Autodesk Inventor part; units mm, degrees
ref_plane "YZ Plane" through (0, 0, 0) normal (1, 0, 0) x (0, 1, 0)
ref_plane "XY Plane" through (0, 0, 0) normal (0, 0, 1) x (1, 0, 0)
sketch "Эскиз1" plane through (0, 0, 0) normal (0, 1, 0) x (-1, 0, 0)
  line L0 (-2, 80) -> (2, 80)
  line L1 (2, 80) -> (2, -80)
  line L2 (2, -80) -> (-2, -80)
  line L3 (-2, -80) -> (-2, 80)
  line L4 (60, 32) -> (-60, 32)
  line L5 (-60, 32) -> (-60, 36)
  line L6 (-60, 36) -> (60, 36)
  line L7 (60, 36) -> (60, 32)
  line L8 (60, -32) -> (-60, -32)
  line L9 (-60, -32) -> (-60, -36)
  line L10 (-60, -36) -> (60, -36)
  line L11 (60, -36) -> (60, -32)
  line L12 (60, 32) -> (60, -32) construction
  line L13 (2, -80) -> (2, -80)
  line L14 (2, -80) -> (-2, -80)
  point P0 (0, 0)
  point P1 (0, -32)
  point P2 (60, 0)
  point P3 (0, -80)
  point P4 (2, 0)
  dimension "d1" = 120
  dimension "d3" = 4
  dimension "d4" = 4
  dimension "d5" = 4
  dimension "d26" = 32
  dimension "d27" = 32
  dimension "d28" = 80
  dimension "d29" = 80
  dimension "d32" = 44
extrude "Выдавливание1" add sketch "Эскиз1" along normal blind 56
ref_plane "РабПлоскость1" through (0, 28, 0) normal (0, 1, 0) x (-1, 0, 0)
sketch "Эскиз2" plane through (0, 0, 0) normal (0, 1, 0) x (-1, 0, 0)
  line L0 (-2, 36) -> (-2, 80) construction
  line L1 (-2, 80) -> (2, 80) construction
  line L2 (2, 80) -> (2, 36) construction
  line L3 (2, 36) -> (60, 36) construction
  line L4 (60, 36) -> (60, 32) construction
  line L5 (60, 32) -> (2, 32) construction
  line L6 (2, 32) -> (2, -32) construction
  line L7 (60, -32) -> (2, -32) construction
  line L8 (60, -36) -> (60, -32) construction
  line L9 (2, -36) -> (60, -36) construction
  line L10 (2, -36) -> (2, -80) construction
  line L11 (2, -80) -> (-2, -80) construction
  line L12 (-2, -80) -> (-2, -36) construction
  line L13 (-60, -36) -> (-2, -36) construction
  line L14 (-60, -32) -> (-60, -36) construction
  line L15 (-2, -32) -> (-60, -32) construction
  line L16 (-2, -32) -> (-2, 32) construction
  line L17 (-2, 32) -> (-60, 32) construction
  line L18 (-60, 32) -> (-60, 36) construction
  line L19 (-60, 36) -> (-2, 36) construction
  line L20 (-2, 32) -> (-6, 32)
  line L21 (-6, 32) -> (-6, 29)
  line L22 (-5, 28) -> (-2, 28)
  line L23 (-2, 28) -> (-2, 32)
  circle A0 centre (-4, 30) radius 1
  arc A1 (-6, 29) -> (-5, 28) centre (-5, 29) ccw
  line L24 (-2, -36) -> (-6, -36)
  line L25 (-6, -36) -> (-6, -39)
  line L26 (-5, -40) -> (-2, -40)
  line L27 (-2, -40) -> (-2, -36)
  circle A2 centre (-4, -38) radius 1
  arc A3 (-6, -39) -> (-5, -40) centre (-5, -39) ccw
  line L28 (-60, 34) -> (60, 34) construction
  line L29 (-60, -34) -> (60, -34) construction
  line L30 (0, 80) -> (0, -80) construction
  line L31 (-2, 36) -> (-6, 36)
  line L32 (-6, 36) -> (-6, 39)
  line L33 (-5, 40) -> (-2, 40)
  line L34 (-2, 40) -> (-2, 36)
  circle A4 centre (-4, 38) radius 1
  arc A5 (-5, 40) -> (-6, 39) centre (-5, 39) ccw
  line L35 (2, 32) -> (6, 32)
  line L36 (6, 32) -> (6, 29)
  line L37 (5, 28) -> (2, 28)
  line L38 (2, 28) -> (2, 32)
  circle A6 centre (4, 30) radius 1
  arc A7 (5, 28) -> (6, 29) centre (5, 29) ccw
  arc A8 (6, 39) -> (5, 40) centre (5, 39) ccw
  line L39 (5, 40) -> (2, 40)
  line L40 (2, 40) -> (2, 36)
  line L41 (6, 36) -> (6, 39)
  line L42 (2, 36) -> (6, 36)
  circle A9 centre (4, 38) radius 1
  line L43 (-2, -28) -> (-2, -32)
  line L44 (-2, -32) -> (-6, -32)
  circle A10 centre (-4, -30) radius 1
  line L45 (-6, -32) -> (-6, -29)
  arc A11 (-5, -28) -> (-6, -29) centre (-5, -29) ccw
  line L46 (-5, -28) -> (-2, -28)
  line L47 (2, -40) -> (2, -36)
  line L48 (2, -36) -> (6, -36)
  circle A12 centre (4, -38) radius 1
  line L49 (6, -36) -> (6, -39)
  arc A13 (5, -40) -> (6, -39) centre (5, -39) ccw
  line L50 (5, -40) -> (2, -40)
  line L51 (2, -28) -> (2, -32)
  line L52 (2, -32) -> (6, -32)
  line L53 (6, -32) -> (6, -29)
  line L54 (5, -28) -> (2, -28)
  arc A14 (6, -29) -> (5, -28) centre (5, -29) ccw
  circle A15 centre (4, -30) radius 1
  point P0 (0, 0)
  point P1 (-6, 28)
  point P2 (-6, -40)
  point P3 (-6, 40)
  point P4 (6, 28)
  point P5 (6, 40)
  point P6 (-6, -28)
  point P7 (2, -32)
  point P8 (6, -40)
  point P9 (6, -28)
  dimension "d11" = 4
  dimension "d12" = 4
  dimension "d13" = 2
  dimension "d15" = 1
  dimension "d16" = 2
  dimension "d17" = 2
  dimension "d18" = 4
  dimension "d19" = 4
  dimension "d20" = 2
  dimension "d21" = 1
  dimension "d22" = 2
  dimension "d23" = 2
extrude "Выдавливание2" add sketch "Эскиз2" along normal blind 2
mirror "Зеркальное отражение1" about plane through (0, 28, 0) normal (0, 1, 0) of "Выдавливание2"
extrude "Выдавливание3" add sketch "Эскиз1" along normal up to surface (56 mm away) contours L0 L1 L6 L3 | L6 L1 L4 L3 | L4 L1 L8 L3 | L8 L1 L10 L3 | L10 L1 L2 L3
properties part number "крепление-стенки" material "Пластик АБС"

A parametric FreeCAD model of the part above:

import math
import FreeCAD as App
import Part
import Sketcher
from FreeCAD import Vector


def add_polygon(sketch, points):
    """Adds a closed chain of lines whose ends are joined by coincident constraints."""
    first, n = sketch.GeometryCount, len(points)
    for a, b in zip(points, points[1:] + points[:1]):
        sketch.addGeometry(Part.LineSegment(App.Vector(*a, 0), App.Vector(*b, 0)), False)
    for i in range(n):
        sketch.addConstraint(Sketcher.Constraint("Coincident", first + i, 2, first + (i + 1) % n, 1))

doc = App.newDocument("Part")
params = doc.addObject("Spreadsheet::Sheet", "Params")
for row, (alias, value) in enumerate([
    ("sketch1_width", "4 mm"),
    ("sketch1_height", "44 mm"),
    ("sketch1_width2", "58 mm"),
    ("pad1_length", "56 mm"),
    ("sketch2_diameter", "2 mm"),
    ("sketch2_width", "4 mm"),
    ("pad2_length", "2 mm"),
    ("sketch3_width", "4 mm"),
    ("pad3_length", "56 mm"),
], start=1):
    params.set(f"A{row}", alias)
    params.set(f"B{row}", "=" + value)
    params.setAlias(f"B{row}", alias)

body = doc.addObject("PartDesign::Body", "Body")

sketch1 = body.newObject("Sketcher::SketchObject", "Sketch")
sketch1.AttachmentSupport = (doc.getObject("XZ_Plane"), [""])
sketch1.MapMode = "FlatFace"
add_polygon(sketch1, [(-2, 80), (2, 80), (2, 36), (60, 36), (60, 32), (2, 32), (2, -32), (60, -32), (60, -36), (2, -36), (2, -80), (-2, -80), (-2, -36), (-60, -36), (-60, -32), (-2, -32), (-2, 32), (-60, 32), (-60, 36), (-2, 36)])
sketch1.addConstraint(Sketcher.Constraint("Horizontal", 0))
sketch1.addConstraint(Sketcher.Constraint("Vertical", 1))
sketch1.addConstraint(Sketcher.Constraint("Horizontal", 2))
sketch1.addConstraint(Sketcher.Constraint("Vertical", 3))
sketch1.addConstraint(Sketcher.Constraint("Horizontal", 4))
sketch1.addConstraint(Sketcher.Constraint("Vertical", 5))
sketch1.addConstraint(Sketcher.Constraint("Horizontal", 6))
sketch1.addConstraint(Sketcher.Constraint("Vertical", 7))
sketch1.addConstraint(Sketcher.Constraint("Horizontal", 8))
sketch1.addConstraint(Sketcher.Constraint("Vertical", 9))
sketch1.addConstraint(Sketcher.Constraint("Horizontal", 10))
sketch1.addConstraint(Sketcher.Constraint("Vertical", 11))
sketch1.addConstraint(Sketcher.Constraint("Horizontal", 12))
sketch1.addConstraint(Sketcher.Constraint("Vertical", 13))
sketch1.addConstraint(Sketcher.Constraint("Horizontal", 14))
sketch1.addConstraint(Sketcher.Constraint("Vertical", 15))
sketch1.addConstraint(Sketcher.Constraint("Horizontal", 16))
sketch1.addConstraint(Sketcher.Constraint("Vertical", 17))
sketch1.addConstraint(Sketcher.Constraint("Horizontal", 18))
sketch1.addConstraint(Sketcher.Constraint("Vertical", 19))
sketch1.addConstraint(Sketcher.Constraint("Symmetric", 0, 2, 10, 2, -1, 1))
sketch1.addConstraint(Sketcher.Constraint("Symmetric", 2, 2, 12, 2, -1, 1))
sketch1.addConstraint(Sketcher.Constraint("Symmetric", 4, 2, 14, 2, -1, 1))
sketch1.addConstraint(Sketcher.Constraint("Symmetric", 6, 2, 16, 2, -1, 1))
sketch1.addConstraint(Sketcher.Constraint("Symmetric", 8, 2, 18, 2, -1, 1))
sketch1.addConstraint(Sketcher.Constraint("Symmetric", 8, 2, 11, 2, -2))
sketch1.addConstraint(Sketcher.Constraint("Symmetric", 6, 2, 13, 2, -2))
sketch1.addConstraint(Sketcher.Constraint("Vertical", 1, 2, 4, 2))
sketch1.addConstraint(Sketcher.Constraint("Equal", 10, 3))
sketch1.addConstraint(Sketcher.Constraint("DistanceX", 0, 1, 0, 2, 4.0))
sketch1.addConstraint(Sketcher.Constraint("DistanceY", 1, 2, 1, 1, 44.0))
sketch1.addConstraint(Sketcher.Constraint("DistanceY", -1, 1, 0, 2, 80.0))
sketch1.addConstraint(Sketcher.Constraint("DistanceX", 2, 1, 2, 2, 58.0))
sketch1.setExpression("Constraints[49]", "Params.sketch1_width")
sketch1.setExpression("Constraints[50]", "Params.sketch1_height")
sketch1.setExpression("Constraints[52]", "Params.sketch1_width2")
pad1 = body.newObject("PartDesign::Pad", "Pad")
pad1.Profile = sketch1
pad1.setExpression("Length", "Params.pad1_length")
pad1.Reversed = True

sketch2 = body.newObject("Sketcher::SketchObject", "Sketch001")
sketch2.AttachmentSupport = (doc.getObject("XZ_Plane"), [""])
sketch2.MapMode = "FlatFace"
sketch2.addGeometry(Part.LineSegment(Vector(2, 28, 0), Vector(2, 32, 0)), False)
sketch2.addGeometry(Part.LineSegment(Vector(2, 32, 0), Vector(6, 32, 0)), False)
sketch2.addGeometry(Part.LineSegment(Vector(6, 32, 0), Vector(6, 29, 0)), False)
sketch2.addGeometry(Part.ArcOfCircle(Part.Circle(Vector(5, 29, 0), Vector(0, 0, 1), 1), math.radians(-90), math.radians(0)), False)
sketch2.addGeometry(Part.LineSegment(Vector(5, 28, 0), Vector(2, 28, 0)), False)
sketch2.addGeometry(Part.Circle(Vector(4, 30, 0), Vector(0, 0, 1), 1), False)
sketch2.addGeometry(Part.LineSegment(Vector(2, -40, 0), Vector(2, -36, 0)), False)
sketch2.addGeometry(Part.LineSegment(Vector(2, -36, 0), Vector(6, -36, 0)), False)
sketch2.addGeometry(Part.LineSegment(Vector(6, -36, 0), Vector(6, -39, 0)), False)
sketch2.addGeometry(Part.ArcOfCircle(Part.Circle(Vector(5, -39, 0), Vector(0, 0, 1), 1), math.radians(-90), math.radians(0)), False)
sketch2.addGeometry(Part.LineSegment(Vector(5, -40, 0), Vector(2, -40, 0)), False)
sketch2.addGeometry(Part.Circle(Vector(4, -38, 0), Vector(0, 0, 1), 1), False)
sketch2.addGeometry(Part.LineSegment(Vector(6, 36, 0), Vector(2, 36, 0)), False)
sketch2.addGeometry(Part.LineSegment(Vector(2, 36, 0), Vector(2, 40, 0)), False)
sketch2.addGeometry(Part.LineSegment(Vector(2, 40, 0), Vector(5, 40, 0)), False)
sketch2.addGeometry(Part.ArcOfCircle(Part.Circle(Vector(5, 39, 0), Vector(0, 0, 1), 1), math.radians(0), math.radians(90)), False)
sketch2.addGeometry(Part.LineSegment(Vector(6, 39, 0), Vector(6, 36, 0)), False)
sketch2.addGeometry(Part.Circle(Vector(4, 38, 0), Vector(0, 0, 1), 1), False)
sketch2.addGeometry(Part.LineSegment(Vector(-6, 32, 0), Vector(-2, 32, 0)), False)
sketch2.addGeometry(Part.LineSegment(Vector(-2, 32, 0), Vector(-2, 28, 0)), False)
sketch2.addGeometry(Part.LineSegment(Vector(-2, 28, 0), Vector(-5, 28, 0)), False)
sketch2.addGeometry(Part.ArcOfCircle(Part.Circle(Vector(-5, 29, 0), Vector(0, 0, 1), 1), math.radians(180), math.radians(270)), False)
sketch2.addGeometry(Part.LineSegment(Vector(-6, 29, 0), Vector(-6, 32, 0)), False)
sketch2.addGeometry(Part.Circle(Vector(-4, 30, 0), Vector(0, 0, 1), 1), False)
sketch2.addGeometry(Part.LineSegment(Vector(-6, 36, 0), Vector(-6, 39, 0)), False)
sketch2.addGeometry(Part.ArcOfCircle(Part.Circle(Vector(-5, 39, 0), Vector(0, 0, 1), 1), math.radians(90), math.radians(180)), False)
sketch2.addGeometry(Part.LineSegment(Vector(-5, 40, 0), Vector(-2, 40, 0)), False)
sketch2.addGeometry(Part.LineSegment(Vector(-2, 40, 0), Vector(-2, 36, 0)), False)
sketch2.addGeometry(Part.LineSegment(Vector(-2, 36, 0), Vector(-6, 36, 0)), False)
sketch2.addGeometry(Part.Circle(Vector(-4, 38, 0), Vector(0, 0, 1), 1), False)
sketch2.addGeometry(Part.LineSegment(Vector(2, -32, 0), Vector(2, -28, 0)), False)
sketch2.addGeometry(Part.LineSegment(Vector(2, -28, 0), Vector(5, -28, 0)), False)
sketch2.addGeometry(Part.ArcOfCircle(Part.Circle(Vector(5, -29, 0), Vector(0, 0, 1), 1), math.radians(0), math.radians(90)), False)
sketch2.addGeometry(Part.LineSegment(Vector(6, -29, 0), Vector(6, -32, 0)), False)
sketch2.addGeometry(Part.LineSegment(Vector(6, -32, 0), Vector(2, -32, 0)), False)
sketch2.addGeometry(Part.Circle(Vector(4, -30, 0), Vector(0, 0, 1), 1), False)
sketch2.addGeometry(Part.LineSegment(Vector(-2, -36, 0), Vector(-2, -40, 0)), False)
sketch2.addGeometry(Part.LineSegment(Vector(-2, -40, 0), Vector(-5, -40, 0)), False)
sketch2.addGeometry(Part.ArcOfCircle(Part.Circle(Vector(-5, -39, 0), Vector(0, 0, 1), 1), math.radians(180), math.radians(270)), False)
sketch2.addGeometry(Part.LineSegment(Vector(-6, -39, 0), Vector(-6, -36, 0)), False)
sketch2.addGeometry(Part.LineSegment(Vector(-6, -36, 0), Vector(-2, -36, 0)), False)
sketch2.addGeometry(Part.Circle(Vector(-4, -38, 0), Vector(0, 0, 1), 1), False)
sketch2.addGeometry(Part.LineSegment(Vector(-5, -28, 0), Vector(-2, -28, 0)), False)
sketch2.addGeometry(Part.LineSegment(Vector(-2, -28, 0), Vector(-2, -32, 0)), False)
sketch2.addGeometry(Part.LineSegment(Vector(-2, -32, 0), Vector(-6, -32, 0)), False)
sketch2.addGeometry(Part.LineSegment(Vector(-6, -32, 0), Vector(-6, -29, 0)), False)
sketch2.addGeometry(Part.ArcOfCircle(Part.Circle(Vector(-5, -29, 0), Vector(0, 0, 1), 1), math.radians(90), math.radians(180)), False)
sketch2.addGeometry(Part.Circle(Vector(-4, -30, 0), Vector(0, 0, 1), 1), False)
sketch2.addConstraint(Sketcher.Constraint("Coincident", 0, 2, 1, 1))
sketch2.addConstraint(Sketcher.Constraint("Coincident", 1, 2, 2, 1))
sketch2.addConstraint(Sketcher.Constraint("Tangent", 2, 2, 3, 2))
sketch2.addConstraint(Sketcher.Constraint("Tangent", 3, 1, 4, 1))
sketch2.addConstraint(Sketcher.Constraint("Coincident", 4, 2, 0, 1))
sketch2.addConstraint(Sketcher.Constraint("Coincident", 6, 2, 7, 1))
sketch2.addConstraint(Sketcher.Constraint("Coincident", 7, 2, 8, 1))
sketch2.addConstraint(Sketcher.Constraint("Tangent", 8, 2, 9, 2))
sketch2.addConstraint(Sketcher.Constraint("Tangent", 9, 1, 10, 1))
sketch2.addConstraint(Sketcher.Constraint("Coincident", 10, 2, 6, 1))
sketch2.addConstraint(Sketcher.Constraint("Coincident", 12, 2, 13, 1))
sketch2.addConstraint(Sketcher.Constraint("Coincident", 13, 2, 14, 1))
sketch2.addConstraint(Sketcher.Constraint("Tangent", 14, 2, 15, 2))
sketch2.addConstraint(Sketcher.Constraint("Tangent", 15, 1, 16, 1))
sketch2.addConstraint(Sketcher.Constraint("Coincident", 16, 2, 12, 1))
sketch2.addConstraint(Sketcher.Constraint("Coincident", 18, 2, 19, 1))
sketch2.addConstraint(Sketcher.Constraint("Coincident", 19, 2, 20, 1))
sketch2.addConstraint(Sketcher.Constraint("Tangent", 20, 2, 21, 2))
sketch2.addConstraint(Sketcher.Constraint("Tangent", 21, 1, 22, 1))
sketch2.addConstraint(Sketcher.Constraint("Coincident", 22, 2, 18, 1))
sketch2.addConstraint(Sketcher.Constraint("Tangent", 24, 2, 25, 2))
sketch2.addConstraint(Sketcher.Constraint("Tangent", 25, 1, 26, 1))
sketch2.addConstraint(Sketcher.Constraint("Coincident", 26, 2, 27, 1))
sketch2.addConstraint(Sketcher.Constraint("Coincident", 27, 2, 28, 1))
sketch2.addConstraint(Sketcher.Constraint("Coincident", 28, 2, 24, 1))
sketch2.addConstraint(Sketcher.Constraint("Coincident", 30, 2, 31, 1))
sketch2.addConstraint(Sketcher.Constraint("Tangent", 31, 2, 32, 2))
sketch2.addConstraint(Sketcher.Constraint("Tangent", 32, 1, 33, 1))
sketch2.addConstraint(Sketcher.Constraint("Coincident", 33, 2, 34, 1))
sketch2.addConstraint(Sketcher.Constraint("Coincident", 34, 2, 30, 1))
sketch2.addConstraint(Sketcher.Constraint("Coincident", 36, 2, 37, 1))
sketch2.addConstraint(Sketcher.Constraint("Tangent", 37, 2, 38, 2))
sketch2.addConstraint(Sketcher.Constraint("Tangent", 38, 1, 39, 1))
sketch2.addConstraint(Sketcher.Constraint("Coincident", 39, 2, 40, 1))
sketch2.addConstraint(Sketcher.Constraint("Coincident", 40, 2, 36, 1))
sketch2.addConstraint(Sketcher.Constraint("Coincident", 42, 2, 43, 1))
sketch2.addConstraint(Sketcher.Constraint("Coincident", 43, 2, 44, 1))
sketch2.addConstraint(Sketcher.Constraint("Coincident", 44, 2, 45, 1))
sketch2.addConstraint(Sketcher.Constraint("Tangent", 45, 2, 46, 2))
sketch2.addConstraint(Sketcher.Constraint("Tangent", 46, 1, 42, 1))
sketch2.addConstraint(Sketcher.Constraint("Vertical", 0))
sketch2.addConstraint(Sketcher.Constraint("Horizontal", 1))
sketch2.addConstraint(Sketcher.Constraint("Vertical", 2))
sketch2.addConstraint(Sketcher.Constraint("Horizontal", 4))
sketch2.addConstraint(Sketcher.Constraint("Vertical", 6))
sketch2.addConstraint(Sketcher.Constraint("Horizontal", 7))
sketch2.addConstraint(Sketcher.Constraint("Vertical", 8))
sketch2.addConstraint(Sketcher.Constraint("Horizontal", 10))
sketch2.addConstraint(Sketcher.Constraint("Horizontal", 12))
sketch2.addConstraint(Sketcher.Constraint("Vertical", 13))
sketch2.addConstraint(Sketcher.Constraint("Horizontal", 14))
sketch2.addConstraint(Sketcher.Constraint("Vertical", 16))
sketch2.addConstraint(Sketcher.Constraint("Horizontal", 18))
sketch2.addConstraint(Sketcher.Constraint("Vertical", 19))
sketch2.addConstraint(Sketcher.Constraint("Horizontal", 20))
sketch2.addConstraint(Sketcher.Constraint("Vertical", 22))
sketch2.addConstraint(Sketcher.Constraint("Vertical", 24))
sketch2.addConstraint(Sketcher.Constraint("Horizontal", 26))
sketch2.addConstraint(Sketcher.Constraint("Vertical", 27))
sketch2.addConstraint(Sketcher.Constraint("Horizontal", 28))
sketch2.addConstraint(Sketcher.Constraint("Vertical", 30))
sketch2.addConstraint(Sketcher.Constraint("Horizontal", 31))
sketch2.addConstraint(Sketcher.Constraint("Vertical", 33))
sketch2.addConstraint(Sketcher.Constraint("Horizontal", 34))
sketch2.addConstraint(Sketcher.Constraint("Vertical", 36))
sketch2.addConstraint(Sketcher.Constraint("Horizontal", 37))
sketch2.addConstraint(Sketcher.Constraint("Vertical", 39))
sketch2.addConstraint(Sketcher.Constraint("Horizontal", 40))
sketch2.addConstraint(Sketcher.Constraint("Horizontal", 42))
sketch2.addConstraint(Sketcher.Constraint("Vertical", 43))
sketch2.addConstraint(Sketcher.Constraint("Horizontal", 44))
sketch2.addConstraint(Sketcher.Constraint("Vertical", 45))
sketch2.addConstraint(Sketcher.Constraint("Equal", 3, 5))
sketch2.addConstraint(Sketcher.Constraint("Equal", 5, 9))
sketch2.addConstraint(Sketcher.Constraint("Equal", 9, 11))
sketch2.addConstraint(Sketcher.Constraint("Equal", 11, 15))
sketch2.addConstraint(Sketcher.Constraint("Equal", 15, 17))
sketch2.addConstraint(Sketcher.Constraint("Equal", 17, 21))
sketch2.addConstraint(Sketcher.Constraint("Equal", 21, 23))
sketch2.addConstraint(Sketcher.Constraint("Equal", 23, 25))
sketch2.addConstraint(Sketcher.Constraint("Equal", 25, 29))
sketch2.addConstraint(Sketcher.Constraint("Equal", 29, 32))
sketch2.addConstraint(Sketcher.Constraint("Equal", 32, 35))
sketch2.addConstraint(Sketcher.Constraint("Equal", 35, 38))
sketch2.addConstraint(Sketcher.Constraint("Equal", 38, 41))
sketch2.addConstraint(Sketcher.Constraint("Equal", 41, 46))
sketch2.addConstraint(Sketcher.Constraint("Equal", 46, 47))
sketch2.addConstraint(Sketcher.Constraint("Symmetric", 9, 3, 25, 3, -1, 1))
sketch2.addConstraint(Sketcher.Constraint("Symmetric", 11, 3, 29, 3, -1, 1))
sketch2.addConstraint(Sketcher.Constraint("Symmetric", 21, 3, 32, 3, -1, 1))
sketch2.addConstraint(Sketcher.Constraint("Symmetric", 23, 3, 35, 3, -1, 1))
sketch2.addConstraint(Sketcher.Constraint("Symmetric", 15, 3, 38, 3, -1, 1))
sketch2.addConstraint(Sketcher.Constraint("Symmetric", 17, 3, 41, 3, -1, 1))
sketch2.addConstraint(Sketcher.Constraint("Symmetric", 3, 3, 46, 3, -1, 1))
sketch2.addConstraint(Sketcher.Constraint("Symmetric", 5, 3, 47, 3, -1, 1))
sketch2.addConstraint(Sketcher.Constraint("Symmetric", 6, 2, 27, 2, -1, 1))
sketch2.addConstraint(Sketcher.Constraint("Symmetric", 18, 2, 34, 2, -1, 1))
sketch2.addConstraint(Sketcher.Constraint("Symmetric", 12, 2, 40, 2, -1, 1))
sketch2.addConstraint(Sketcher.Constraint("Symmetric", 0, 2, 43, 2, -1, 1))
sketch2.addConstraint(Sketcher.Constraint("Symmetric", 3, 3, 21, 3, -2))
sketch2.addConstraint(Sketcher.Constraint("Symmetric", 5, 3, 23, 3, -2))
sketch2.addConstraint(Sketcher.Constraint("Symmetric", 15, 3, 25, 3, -2))
sketch2.addConstraint(Sketcher.Constraint("Symmetric", 17, 3, 29, 3, -2))
sketch2.addConstraint(Sketcher.Constraint("Symmetric", 0, 2, 18, 2, -2))
sketch2.addConstraint(Sketcher.Constraint("Symmetric", 12, 2, 27, 2, -2))
sketch2.addConstraint(Sketcher.Constraint("Vertical", 3, 3, 9, 3))
sketch2.addConstraint(Sketcher.Constraint("Vertical", 5, 3, 11, 3))
sketch2.addConstraint(Sketcher.Constraint("Vertical", 4, 2, 6, 2))
sketch2.addConstraint(Sketcher.Constraint("Equal", 44, 0))
sketch2.addConstraint(Sketcher.Constraint("Equal", 0, 6))
sketch2.addConstraint(Sketcher.Constraint("Diameter", 5, 2.0))
sketch2.addConstraint(Sketcher.Constraint("DistanceX", 1, 1, 1, 2, 4.0))
sketch2.addConstraint(Sketcher.Constraint("DistanceX", -1, 1, 5, 3, 4.0))
sketch2.addConstraint(Sketcher.Constraint("DistanceX", -1, 1, 0, 2, 2.0))
sketch2.addConstraint(Sketcher.Constraint("DistanceY", 3, 3, 5, 3, 1.0))
sketch2.addConstraint(Sketcher.Constraint("DistanceY", 9, 3, 11, 3, 1.0))
sketch2.addConstraint(Sketcher.Constraint("DistanceY", 0, 2, 12, 2, 4.0))
sketch2.addConstraint(Sketcher.Constraint("DistanceY", -1, 1, 3, 3, 29.0))
sketch2.setExpression("Constraints[110]", "Params.sketch2_diameter")
sketch2.setExpression("Constraints[111]", "Params.sketch2_width")
pad2 = body.newObject("PartDesign::Pad", "Pad001")
pad2.Profile = sketch2
pad2.setExpression("Length", "Params.pad2_length")
pad2.Reversed = True
doc.recompute()

datumplane = body.newObject("PartDesign::Plane", "DatumPlane")
datumplane.AttachmentSupport = (doc.getObject("XZ_Plane"), [""])
datumplane.MapMode = "FlatFace"
datumplane.AttachmentOffset = App.Placement(Vector(0, 0, -28), App.Rotation())
mirrored = body.newObject("PartDesign::Mirrored", "Mirrored")
mirrored.Originals = [pad2]
mirrored.MirrorPlane = (datumplane, [""])
body.Tip = mirrored

sketch3 = body.newObject("Sketcher::SketchObject", "Sketch002")
sketch3.AttachmentSupport = (doc.getObject("XZ_Plane"), [""])
sketch3.MapMode = "FlatFace"
add_polygon(sketch3, [(-2, 80), (2, 80), (2, -80), (-2, -80)])
sketch3.addConstraint(Sketcher.Constraint("Horizontal", 0))
sketch3.addConstraint(Sketcher.Constraint("Vertical", 1))
sketch3.addConstraint(Sketcher.Constraint("Horizontal", 2))
sketch3.addConstraint(Sketcher.Constraint("Vertical", 3))
sketch3.addConstraint(Sketcher.Constraint("Symmetric", 0, 2, 2, 2, -1, 1))
sketch3.addConstraint(Sketcher.Constraint("DistanceX", 0, 1, 0, 2, 4.0))
sketch3.addConstraint(Sketcher.Constraint("DistanceY", -1, 1, 0, 2, 80.0))
sketch3.setExpression("Constraints[9]", "Params.sketch3_width")
pad3 = body.newObject("PartDesign::Pad", "Pad002")
pad3.Profile = sketch3
pad3.setExpression("Length", "Params.pad3_length")
pad3.Reversed = True

doc.recompute()
